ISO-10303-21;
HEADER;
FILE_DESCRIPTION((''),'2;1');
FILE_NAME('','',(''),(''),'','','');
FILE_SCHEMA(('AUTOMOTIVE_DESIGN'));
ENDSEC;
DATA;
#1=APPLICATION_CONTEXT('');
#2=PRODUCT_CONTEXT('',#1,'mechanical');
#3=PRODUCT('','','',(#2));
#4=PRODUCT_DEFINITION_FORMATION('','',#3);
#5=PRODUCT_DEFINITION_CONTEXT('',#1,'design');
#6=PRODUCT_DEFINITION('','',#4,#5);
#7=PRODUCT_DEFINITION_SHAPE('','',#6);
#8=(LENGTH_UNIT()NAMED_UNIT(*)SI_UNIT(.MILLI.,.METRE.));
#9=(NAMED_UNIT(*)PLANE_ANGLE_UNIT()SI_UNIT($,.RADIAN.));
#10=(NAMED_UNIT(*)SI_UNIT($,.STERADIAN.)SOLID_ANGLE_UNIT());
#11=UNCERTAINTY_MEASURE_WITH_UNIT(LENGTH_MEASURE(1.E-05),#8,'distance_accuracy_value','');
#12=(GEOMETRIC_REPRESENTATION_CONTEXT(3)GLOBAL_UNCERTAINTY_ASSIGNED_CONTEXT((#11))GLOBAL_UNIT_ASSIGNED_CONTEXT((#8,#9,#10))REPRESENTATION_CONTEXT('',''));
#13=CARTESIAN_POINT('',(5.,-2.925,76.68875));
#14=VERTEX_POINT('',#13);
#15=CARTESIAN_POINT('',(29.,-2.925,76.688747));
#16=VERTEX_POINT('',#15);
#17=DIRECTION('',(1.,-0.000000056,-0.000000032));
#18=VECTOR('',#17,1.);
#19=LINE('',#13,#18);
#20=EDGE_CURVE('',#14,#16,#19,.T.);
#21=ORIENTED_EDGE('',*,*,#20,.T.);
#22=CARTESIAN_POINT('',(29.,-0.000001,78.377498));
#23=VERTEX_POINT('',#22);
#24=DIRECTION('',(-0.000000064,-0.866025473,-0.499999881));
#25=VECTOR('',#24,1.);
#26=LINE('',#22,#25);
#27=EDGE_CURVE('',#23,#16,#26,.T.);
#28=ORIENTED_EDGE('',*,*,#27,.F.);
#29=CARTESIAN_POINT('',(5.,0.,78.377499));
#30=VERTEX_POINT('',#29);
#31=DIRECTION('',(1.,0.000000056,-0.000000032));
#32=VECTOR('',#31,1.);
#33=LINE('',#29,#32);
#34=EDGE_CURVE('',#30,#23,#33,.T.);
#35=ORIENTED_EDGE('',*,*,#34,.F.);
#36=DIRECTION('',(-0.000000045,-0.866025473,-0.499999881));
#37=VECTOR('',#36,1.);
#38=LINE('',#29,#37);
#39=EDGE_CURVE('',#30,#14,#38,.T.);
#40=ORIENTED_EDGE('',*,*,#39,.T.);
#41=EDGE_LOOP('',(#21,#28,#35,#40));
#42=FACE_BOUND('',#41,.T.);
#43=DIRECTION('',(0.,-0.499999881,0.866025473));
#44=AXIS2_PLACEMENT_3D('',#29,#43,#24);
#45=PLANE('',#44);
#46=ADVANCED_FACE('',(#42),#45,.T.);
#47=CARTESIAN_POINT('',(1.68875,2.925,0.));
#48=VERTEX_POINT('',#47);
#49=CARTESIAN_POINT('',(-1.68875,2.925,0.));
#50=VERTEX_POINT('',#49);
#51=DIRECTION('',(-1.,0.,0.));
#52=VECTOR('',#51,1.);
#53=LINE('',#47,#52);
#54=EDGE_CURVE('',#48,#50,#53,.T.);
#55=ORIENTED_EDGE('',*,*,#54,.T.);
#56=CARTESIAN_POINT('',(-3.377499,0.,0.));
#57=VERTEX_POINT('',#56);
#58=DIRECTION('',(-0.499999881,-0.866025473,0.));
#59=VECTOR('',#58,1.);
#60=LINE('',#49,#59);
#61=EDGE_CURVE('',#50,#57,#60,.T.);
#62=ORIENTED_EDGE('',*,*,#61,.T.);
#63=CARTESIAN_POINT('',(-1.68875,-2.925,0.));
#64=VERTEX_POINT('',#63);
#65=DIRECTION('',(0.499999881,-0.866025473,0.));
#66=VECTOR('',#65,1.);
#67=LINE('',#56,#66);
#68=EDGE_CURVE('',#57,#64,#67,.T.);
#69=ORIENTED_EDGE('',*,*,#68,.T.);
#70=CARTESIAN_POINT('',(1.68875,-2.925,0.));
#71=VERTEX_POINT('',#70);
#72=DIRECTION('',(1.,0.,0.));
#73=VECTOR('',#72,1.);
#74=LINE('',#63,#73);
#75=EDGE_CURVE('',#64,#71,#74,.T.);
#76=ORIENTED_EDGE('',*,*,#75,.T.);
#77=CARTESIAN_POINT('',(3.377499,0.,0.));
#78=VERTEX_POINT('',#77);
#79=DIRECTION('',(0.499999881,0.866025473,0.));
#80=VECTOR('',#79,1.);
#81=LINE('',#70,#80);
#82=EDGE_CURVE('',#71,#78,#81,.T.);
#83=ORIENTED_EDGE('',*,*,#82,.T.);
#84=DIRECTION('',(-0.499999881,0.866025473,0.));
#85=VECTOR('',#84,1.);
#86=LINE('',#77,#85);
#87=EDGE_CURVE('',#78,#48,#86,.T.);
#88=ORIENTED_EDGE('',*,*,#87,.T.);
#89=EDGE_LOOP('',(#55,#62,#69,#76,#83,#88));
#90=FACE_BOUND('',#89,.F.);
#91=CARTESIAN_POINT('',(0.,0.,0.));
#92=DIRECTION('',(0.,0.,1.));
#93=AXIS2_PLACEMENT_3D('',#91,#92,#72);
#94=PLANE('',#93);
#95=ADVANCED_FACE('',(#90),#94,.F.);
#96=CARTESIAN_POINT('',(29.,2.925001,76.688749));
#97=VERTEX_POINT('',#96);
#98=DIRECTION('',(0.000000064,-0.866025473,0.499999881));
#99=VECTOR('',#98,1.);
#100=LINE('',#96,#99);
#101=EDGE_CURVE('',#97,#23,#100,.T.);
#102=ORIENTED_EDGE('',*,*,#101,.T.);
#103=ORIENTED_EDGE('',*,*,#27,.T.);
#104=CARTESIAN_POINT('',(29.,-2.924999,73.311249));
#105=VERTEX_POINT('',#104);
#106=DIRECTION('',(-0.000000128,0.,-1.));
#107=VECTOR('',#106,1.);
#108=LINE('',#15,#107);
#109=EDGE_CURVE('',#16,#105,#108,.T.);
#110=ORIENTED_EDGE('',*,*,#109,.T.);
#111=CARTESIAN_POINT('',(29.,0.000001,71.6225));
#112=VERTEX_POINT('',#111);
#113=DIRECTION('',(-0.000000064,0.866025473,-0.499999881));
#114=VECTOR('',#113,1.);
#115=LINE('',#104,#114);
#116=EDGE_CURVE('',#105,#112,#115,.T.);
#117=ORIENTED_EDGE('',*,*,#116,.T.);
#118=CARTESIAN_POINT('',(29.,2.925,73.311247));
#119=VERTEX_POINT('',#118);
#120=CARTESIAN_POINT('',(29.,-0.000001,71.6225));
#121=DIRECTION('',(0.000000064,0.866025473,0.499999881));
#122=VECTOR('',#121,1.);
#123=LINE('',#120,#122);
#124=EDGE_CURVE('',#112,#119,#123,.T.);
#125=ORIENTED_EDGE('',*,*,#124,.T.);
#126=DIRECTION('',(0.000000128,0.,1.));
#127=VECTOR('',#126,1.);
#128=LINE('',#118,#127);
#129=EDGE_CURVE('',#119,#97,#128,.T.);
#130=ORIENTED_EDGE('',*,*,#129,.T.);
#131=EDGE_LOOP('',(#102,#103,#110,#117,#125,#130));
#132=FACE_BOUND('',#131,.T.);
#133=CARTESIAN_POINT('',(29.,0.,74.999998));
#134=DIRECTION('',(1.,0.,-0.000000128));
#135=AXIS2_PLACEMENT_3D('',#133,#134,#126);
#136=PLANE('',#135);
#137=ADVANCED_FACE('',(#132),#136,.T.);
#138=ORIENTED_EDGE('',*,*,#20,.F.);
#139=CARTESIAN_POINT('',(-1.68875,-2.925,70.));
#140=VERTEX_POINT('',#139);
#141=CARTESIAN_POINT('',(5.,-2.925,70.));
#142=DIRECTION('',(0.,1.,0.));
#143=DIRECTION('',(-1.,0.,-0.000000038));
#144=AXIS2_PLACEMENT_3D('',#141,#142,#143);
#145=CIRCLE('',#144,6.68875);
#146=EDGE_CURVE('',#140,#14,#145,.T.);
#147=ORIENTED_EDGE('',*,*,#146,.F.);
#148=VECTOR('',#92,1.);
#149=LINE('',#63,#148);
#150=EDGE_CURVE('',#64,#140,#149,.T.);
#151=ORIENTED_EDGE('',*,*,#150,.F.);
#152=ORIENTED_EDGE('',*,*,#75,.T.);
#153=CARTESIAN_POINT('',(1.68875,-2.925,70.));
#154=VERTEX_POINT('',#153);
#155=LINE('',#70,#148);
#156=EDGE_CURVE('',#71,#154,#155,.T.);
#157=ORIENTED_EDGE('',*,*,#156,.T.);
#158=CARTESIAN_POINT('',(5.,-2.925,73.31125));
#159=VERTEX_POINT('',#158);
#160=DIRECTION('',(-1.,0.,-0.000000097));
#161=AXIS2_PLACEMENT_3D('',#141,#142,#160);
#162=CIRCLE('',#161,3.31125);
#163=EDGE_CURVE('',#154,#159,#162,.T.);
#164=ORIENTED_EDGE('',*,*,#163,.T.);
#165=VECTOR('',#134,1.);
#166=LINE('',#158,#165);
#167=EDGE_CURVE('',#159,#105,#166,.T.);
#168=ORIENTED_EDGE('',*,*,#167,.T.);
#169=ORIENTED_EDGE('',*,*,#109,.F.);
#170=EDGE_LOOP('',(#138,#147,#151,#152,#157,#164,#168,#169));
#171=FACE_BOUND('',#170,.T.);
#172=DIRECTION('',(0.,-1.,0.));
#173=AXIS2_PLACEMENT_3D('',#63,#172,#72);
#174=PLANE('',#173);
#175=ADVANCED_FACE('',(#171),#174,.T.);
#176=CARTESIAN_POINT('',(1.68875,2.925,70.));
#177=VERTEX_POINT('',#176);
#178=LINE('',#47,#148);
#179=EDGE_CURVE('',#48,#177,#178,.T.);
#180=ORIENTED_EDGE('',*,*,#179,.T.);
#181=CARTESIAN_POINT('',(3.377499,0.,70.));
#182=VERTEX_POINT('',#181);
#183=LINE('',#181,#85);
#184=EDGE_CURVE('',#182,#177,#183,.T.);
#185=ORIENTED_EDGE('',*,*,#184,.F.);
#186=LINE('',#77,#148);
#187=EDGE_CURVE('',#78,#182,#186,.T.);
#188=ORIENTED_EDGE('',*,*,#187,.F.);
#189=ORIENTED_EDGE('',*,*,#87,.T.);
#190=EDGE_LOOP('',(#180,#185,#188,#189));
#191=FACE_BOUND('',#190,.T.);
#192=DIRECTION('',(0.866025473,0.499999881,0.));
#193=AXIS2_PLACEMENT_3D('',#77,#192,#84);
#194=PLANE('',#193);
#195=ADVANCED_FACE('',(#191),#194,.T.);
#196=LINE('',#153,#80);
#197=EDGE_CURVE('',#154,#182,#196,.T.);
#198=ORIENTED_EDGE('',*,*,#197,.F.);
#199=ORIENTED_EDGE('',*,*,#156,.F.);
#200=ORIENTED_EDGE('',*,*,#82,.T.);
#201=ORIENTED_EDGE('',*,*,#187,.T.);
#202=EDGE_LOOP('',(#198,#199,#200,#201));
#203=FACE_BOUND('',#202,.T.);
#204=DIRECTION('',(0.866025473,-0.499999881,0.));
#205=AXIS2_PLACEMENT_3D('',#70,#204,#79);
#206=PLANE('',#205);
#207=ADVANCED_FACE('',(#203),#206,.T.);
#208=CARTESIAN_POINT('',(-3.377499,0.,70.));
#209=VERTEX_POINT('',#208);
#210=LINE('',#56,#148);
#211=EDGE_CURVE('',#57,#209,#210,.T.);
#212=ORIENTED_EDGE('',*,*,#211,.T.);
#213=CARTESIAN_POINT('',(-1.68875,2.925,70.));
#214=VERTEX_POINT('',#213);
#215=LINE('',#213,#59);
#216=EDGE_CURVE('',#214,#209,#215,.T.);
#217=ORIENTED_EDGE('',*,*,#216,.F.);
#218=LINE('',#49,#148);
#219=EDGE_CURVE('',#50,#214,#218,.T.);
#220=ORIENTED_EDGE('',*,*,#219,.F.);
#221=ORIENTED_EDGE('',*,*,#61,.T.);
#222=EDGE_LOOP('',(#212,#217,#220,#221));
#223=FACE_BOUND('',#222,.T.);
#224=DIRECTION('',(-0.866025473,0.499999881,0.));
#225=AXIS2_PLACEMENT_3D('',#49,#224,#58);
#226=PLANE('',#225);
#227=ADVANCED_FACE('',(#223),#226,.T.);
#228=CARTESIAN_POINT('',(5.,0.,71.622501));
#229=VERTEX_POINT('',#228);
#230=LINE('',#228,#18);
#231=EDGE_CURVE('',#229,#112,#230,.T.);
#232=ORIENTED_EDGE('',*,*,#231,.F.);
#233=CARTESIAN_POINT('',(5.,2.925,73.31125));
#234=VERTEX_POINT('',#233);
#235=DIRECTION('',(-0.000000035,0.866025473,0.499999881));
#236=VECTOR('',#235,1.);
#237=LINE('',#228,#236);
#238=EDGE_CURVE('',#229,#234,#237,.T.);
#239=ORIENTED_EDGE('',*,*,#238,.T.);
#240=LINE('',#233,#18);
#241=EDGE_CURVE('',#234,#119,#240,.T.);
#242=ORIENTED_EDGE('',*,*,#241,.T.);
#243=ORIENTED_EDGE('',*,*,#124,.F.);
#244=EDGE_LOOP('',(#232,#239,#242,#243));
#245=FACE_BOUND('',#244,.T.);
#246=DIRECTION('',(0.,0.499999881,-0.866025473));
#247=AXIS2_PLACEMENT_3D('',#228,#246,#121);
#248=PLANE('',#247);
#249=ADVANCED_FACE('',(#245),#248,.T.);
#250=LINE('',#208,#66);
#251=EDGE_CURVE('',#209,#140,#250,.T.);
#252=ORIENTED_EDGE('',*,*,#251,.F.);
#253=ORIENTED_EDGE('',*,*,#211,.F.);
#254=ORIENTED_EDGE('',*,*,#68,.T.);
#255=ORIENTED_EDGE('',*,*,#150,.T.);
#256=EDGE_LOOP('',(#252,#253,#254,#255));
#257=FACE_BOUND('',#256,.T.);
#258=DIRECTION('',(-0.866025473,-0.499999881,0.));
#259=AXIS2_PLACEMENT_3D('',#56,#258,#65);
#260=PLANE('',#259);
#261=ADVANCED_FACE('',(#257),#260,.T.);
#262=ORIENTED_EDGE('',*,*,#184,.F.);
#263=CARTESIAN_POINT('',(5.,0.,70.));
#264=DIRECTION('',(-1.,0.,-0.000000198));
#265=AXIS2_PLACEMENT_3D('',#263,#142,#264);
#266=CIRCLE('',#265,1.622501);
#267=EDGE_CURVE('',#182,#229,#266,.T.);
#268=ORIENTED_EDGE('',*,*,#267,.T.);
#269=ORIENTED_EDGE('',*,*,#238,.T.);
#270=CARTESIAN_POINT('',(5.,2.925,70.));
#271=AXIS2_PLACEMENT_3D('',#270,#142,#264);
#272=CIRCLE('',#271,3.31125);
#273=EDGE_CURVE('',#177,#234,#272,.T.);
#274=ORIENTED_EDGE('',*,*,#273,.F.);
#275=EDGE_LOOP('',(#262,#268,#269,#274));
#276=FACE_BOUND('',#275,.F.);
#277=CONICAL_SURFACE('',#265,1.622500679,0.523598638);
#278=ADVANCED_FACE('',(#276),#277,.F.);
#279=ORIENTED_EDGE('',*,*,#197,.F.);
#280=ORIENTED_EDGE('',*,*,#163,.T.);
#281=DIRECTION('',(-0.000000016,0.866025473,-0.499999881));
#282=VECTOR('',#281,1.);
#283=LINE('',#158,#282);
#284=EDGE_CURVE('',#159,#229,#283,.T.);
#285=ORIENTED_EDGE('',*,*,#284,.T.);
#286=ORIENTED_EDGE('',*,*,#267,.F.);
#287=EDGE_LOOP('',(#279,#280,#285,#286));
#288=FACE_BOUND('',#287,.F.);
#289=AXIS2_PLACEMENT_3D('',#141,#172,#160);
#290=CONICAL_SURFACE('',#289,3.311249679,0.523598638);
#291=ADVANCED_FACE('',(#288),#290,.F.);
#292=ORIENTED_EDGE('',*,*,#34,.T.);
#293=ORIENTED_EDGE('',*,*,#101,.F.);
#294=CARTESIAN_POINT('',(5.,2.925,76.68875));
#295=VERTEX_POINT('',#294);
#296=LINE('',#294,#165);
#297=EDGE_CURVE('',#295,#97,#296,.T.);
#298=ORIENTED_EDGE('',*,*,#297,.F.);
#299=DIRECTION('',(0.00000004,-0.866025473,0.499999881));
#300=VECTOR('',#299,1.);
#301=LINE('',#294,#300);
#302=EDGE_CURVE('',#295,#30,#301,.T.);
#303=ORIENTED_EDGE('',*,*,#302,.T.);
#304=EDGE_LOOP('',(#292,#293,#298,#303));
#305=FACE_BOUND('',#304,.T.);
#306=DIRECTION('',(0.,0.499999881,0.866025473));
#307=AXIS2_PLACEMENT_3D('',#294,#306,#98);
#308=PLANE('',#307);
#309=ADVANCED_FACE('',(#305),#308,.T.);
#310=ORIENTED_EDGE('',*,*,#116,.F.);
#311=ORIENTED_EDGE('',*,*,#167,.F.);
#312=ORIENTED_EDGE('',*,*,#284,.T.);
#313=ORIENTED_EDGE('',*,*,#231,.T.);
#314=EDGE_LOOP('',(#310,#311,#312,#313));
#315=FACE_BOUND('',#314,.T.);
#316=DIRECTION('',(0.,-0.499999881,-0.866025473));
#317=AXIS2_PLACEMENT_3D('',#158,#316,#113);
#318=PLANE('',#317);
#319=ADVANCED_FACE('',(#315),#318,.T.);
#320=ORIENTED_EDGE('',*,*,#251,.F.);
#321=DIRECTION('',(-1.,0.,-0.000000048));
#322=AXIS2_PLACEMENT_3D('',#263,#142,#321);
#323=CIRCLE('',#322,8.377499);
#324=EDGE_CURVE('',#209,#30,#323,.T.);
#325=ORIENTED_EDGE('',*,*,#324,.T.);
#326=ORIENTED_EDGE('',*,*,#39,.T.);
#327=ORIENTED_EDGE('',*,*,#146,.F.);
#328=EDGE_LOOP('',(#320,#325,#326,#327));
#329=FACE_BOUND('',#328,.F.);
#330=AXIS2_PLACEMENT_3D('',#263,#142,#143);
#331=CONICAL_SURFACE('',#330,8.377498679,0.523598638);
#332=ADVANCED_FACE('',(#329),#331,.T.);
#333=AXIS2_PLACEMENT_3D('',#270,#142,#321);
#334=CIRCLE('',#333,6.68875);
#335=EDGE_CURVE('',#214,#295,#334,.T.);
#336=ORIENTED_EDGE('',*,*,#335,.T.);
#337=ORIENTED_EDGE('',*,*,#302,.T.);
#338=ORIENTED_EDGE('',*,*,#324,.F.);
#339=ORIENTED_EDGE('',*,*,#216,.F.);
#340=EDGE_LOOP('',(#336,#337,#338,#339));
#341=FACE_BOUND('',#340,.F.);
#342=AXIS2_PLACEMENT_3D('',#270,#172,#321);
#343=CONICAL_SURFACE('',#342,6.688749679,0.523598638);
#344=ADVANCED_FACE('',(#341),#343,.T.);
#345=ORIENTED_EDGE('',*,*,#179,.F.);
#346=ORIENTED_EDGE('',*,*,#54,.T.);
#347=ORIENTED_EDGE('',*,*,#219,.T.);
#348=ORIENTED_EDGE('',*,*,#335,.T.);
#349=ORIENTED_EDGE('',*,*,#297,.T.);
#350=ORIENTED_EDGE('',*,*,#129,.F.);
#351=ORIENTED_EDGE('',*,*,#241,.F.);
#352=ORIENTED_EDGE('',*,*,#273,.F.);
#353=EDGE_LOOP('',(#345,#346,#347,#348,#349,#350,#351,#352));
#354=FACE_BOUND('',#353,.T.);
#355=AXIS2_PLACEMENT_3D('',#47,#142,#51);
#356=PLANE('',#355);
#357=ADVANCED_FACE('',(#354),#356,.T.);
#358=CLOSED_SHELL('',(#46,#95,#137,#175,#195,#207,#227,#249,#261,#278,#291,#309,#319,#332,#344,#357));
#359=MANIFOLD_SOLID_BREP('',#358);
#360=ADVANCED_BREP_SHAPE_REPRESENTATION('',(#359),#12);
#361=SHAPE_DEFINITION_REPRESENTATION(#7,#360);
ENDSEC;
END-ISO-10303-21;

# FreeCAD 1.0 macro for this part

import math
import FreeCAD as App
import Part
import Sketcher
Q = App.Units.Quantity


def add_polygon(sketch, points):
    """Adds a closed chain of lines whose ends are joined by coincident constraints."""
    first, n = sketch.GeometryCount, len(points)
    for a, b in zip(points, points[1:] + points[:1]):
        sketch.addGeometry(Part.LineSegment(App.Vector(*a, 0), App.Vector(*b, 0)), False)
    for i in range(n):
        sketch.addConstraint(Sketcher.Constraint("Coincident", first + i, 2, first + (i + 1) % n, 1))

doc = App.newDocument("Part")
body = doc.addObject("PartDesign::Body", "Body")

sketch1 = body.newObject("Sketcher::SketchObject", "Sketch")
sketch1.AttachmentSupport = (doc.getObject("XY_Plane"), [""])
sketch1.MapMode = "FlatFace"
add_polygon(sketch1, [(3.377499, 0), (1.68875, 2.925), (-1.68875, 2.925), (-3.377499, 0), (-1.68875, -2.925), (1.68875, -2.925)])
sketch1.addConstraint([
    Sketcher.Constraint("Horizontal", 1),
    Sketcher.Constraint("Horizontal", 4),
    Sketcher.Constraint("Symmetric", 0, 2, 3, 2, -1, 1),
    Sketcher.Constraint("Symmetric", 2, 2, 5, 2, -1, 1),
    Sketcher.Constraint("PointOnObject", 2, 2, -1),
    Sketcher.Constraint("Parallel", 2, 5),
    Sketcher.Constraint("Vertical", 1, 2, 3, 2),
    Sketcher.Constraint("Angle", 0, Q("119.999992 deg")),
    Sketcher.Constraint("DistanceY", 3, 2, 1, 2, 5.85),
    Sketcher.Constraint("DistanceX", 1, 2, 1, 1, 3.3775),
])

sketch2 = body.newObject("Sketcher::SketchObject", "Sketch001")
sketch2.AttachmentSupport = (doc.getObject("XZ_Plane"), [""])
sketch2.MapMode = "FlatFace"
sketch2.addGeometry([
    Part.LineSegment(App.Vector(0, 0, 0), App.Vector(0, 70, 0)),
    Part.ArcOfCircle(Part.Circle(App.Vector(5, 70, 0), App.Vector(0, 0, 1), 5), math.radians(89.999996), math.radians(180.000004)),
    Part.LineSegment(App.Vector(5, 75, 0), App.Vector(29, 75, 0)),
], False)
sketch2.addConstraint([
    Sketcher.Constraint("Tangent", 0, 2, 1, 2),
    Sketcher.Constraint("Tangent", 1, 1, 2, 1),
    Sketcher.Constraint("Vertical", 0),
    Sketcher.Constraint("Horizontal", 2),
    Sketcher.Constraint("Coincident", 0, 1, -1, 1),
    Sketcher.Constraint("Radius", 1, 5.0),
    Sketcher.Constraint("DistanceX", 2, 1, 2, 2, 24.0),
    Sketcher.Constraint("DistanceY", 0, 1, 0, 2, 70.0),
])
doc.recompute()

additivepipe = body.newObject("PartDesign::AdditivePipe", "AdditivePipe")
additivepipe.Profile = sketch1
additivepipe.Spine = (sketch2, ["Edge1", "Edge2", "Edge3"])

doc.recompute()
